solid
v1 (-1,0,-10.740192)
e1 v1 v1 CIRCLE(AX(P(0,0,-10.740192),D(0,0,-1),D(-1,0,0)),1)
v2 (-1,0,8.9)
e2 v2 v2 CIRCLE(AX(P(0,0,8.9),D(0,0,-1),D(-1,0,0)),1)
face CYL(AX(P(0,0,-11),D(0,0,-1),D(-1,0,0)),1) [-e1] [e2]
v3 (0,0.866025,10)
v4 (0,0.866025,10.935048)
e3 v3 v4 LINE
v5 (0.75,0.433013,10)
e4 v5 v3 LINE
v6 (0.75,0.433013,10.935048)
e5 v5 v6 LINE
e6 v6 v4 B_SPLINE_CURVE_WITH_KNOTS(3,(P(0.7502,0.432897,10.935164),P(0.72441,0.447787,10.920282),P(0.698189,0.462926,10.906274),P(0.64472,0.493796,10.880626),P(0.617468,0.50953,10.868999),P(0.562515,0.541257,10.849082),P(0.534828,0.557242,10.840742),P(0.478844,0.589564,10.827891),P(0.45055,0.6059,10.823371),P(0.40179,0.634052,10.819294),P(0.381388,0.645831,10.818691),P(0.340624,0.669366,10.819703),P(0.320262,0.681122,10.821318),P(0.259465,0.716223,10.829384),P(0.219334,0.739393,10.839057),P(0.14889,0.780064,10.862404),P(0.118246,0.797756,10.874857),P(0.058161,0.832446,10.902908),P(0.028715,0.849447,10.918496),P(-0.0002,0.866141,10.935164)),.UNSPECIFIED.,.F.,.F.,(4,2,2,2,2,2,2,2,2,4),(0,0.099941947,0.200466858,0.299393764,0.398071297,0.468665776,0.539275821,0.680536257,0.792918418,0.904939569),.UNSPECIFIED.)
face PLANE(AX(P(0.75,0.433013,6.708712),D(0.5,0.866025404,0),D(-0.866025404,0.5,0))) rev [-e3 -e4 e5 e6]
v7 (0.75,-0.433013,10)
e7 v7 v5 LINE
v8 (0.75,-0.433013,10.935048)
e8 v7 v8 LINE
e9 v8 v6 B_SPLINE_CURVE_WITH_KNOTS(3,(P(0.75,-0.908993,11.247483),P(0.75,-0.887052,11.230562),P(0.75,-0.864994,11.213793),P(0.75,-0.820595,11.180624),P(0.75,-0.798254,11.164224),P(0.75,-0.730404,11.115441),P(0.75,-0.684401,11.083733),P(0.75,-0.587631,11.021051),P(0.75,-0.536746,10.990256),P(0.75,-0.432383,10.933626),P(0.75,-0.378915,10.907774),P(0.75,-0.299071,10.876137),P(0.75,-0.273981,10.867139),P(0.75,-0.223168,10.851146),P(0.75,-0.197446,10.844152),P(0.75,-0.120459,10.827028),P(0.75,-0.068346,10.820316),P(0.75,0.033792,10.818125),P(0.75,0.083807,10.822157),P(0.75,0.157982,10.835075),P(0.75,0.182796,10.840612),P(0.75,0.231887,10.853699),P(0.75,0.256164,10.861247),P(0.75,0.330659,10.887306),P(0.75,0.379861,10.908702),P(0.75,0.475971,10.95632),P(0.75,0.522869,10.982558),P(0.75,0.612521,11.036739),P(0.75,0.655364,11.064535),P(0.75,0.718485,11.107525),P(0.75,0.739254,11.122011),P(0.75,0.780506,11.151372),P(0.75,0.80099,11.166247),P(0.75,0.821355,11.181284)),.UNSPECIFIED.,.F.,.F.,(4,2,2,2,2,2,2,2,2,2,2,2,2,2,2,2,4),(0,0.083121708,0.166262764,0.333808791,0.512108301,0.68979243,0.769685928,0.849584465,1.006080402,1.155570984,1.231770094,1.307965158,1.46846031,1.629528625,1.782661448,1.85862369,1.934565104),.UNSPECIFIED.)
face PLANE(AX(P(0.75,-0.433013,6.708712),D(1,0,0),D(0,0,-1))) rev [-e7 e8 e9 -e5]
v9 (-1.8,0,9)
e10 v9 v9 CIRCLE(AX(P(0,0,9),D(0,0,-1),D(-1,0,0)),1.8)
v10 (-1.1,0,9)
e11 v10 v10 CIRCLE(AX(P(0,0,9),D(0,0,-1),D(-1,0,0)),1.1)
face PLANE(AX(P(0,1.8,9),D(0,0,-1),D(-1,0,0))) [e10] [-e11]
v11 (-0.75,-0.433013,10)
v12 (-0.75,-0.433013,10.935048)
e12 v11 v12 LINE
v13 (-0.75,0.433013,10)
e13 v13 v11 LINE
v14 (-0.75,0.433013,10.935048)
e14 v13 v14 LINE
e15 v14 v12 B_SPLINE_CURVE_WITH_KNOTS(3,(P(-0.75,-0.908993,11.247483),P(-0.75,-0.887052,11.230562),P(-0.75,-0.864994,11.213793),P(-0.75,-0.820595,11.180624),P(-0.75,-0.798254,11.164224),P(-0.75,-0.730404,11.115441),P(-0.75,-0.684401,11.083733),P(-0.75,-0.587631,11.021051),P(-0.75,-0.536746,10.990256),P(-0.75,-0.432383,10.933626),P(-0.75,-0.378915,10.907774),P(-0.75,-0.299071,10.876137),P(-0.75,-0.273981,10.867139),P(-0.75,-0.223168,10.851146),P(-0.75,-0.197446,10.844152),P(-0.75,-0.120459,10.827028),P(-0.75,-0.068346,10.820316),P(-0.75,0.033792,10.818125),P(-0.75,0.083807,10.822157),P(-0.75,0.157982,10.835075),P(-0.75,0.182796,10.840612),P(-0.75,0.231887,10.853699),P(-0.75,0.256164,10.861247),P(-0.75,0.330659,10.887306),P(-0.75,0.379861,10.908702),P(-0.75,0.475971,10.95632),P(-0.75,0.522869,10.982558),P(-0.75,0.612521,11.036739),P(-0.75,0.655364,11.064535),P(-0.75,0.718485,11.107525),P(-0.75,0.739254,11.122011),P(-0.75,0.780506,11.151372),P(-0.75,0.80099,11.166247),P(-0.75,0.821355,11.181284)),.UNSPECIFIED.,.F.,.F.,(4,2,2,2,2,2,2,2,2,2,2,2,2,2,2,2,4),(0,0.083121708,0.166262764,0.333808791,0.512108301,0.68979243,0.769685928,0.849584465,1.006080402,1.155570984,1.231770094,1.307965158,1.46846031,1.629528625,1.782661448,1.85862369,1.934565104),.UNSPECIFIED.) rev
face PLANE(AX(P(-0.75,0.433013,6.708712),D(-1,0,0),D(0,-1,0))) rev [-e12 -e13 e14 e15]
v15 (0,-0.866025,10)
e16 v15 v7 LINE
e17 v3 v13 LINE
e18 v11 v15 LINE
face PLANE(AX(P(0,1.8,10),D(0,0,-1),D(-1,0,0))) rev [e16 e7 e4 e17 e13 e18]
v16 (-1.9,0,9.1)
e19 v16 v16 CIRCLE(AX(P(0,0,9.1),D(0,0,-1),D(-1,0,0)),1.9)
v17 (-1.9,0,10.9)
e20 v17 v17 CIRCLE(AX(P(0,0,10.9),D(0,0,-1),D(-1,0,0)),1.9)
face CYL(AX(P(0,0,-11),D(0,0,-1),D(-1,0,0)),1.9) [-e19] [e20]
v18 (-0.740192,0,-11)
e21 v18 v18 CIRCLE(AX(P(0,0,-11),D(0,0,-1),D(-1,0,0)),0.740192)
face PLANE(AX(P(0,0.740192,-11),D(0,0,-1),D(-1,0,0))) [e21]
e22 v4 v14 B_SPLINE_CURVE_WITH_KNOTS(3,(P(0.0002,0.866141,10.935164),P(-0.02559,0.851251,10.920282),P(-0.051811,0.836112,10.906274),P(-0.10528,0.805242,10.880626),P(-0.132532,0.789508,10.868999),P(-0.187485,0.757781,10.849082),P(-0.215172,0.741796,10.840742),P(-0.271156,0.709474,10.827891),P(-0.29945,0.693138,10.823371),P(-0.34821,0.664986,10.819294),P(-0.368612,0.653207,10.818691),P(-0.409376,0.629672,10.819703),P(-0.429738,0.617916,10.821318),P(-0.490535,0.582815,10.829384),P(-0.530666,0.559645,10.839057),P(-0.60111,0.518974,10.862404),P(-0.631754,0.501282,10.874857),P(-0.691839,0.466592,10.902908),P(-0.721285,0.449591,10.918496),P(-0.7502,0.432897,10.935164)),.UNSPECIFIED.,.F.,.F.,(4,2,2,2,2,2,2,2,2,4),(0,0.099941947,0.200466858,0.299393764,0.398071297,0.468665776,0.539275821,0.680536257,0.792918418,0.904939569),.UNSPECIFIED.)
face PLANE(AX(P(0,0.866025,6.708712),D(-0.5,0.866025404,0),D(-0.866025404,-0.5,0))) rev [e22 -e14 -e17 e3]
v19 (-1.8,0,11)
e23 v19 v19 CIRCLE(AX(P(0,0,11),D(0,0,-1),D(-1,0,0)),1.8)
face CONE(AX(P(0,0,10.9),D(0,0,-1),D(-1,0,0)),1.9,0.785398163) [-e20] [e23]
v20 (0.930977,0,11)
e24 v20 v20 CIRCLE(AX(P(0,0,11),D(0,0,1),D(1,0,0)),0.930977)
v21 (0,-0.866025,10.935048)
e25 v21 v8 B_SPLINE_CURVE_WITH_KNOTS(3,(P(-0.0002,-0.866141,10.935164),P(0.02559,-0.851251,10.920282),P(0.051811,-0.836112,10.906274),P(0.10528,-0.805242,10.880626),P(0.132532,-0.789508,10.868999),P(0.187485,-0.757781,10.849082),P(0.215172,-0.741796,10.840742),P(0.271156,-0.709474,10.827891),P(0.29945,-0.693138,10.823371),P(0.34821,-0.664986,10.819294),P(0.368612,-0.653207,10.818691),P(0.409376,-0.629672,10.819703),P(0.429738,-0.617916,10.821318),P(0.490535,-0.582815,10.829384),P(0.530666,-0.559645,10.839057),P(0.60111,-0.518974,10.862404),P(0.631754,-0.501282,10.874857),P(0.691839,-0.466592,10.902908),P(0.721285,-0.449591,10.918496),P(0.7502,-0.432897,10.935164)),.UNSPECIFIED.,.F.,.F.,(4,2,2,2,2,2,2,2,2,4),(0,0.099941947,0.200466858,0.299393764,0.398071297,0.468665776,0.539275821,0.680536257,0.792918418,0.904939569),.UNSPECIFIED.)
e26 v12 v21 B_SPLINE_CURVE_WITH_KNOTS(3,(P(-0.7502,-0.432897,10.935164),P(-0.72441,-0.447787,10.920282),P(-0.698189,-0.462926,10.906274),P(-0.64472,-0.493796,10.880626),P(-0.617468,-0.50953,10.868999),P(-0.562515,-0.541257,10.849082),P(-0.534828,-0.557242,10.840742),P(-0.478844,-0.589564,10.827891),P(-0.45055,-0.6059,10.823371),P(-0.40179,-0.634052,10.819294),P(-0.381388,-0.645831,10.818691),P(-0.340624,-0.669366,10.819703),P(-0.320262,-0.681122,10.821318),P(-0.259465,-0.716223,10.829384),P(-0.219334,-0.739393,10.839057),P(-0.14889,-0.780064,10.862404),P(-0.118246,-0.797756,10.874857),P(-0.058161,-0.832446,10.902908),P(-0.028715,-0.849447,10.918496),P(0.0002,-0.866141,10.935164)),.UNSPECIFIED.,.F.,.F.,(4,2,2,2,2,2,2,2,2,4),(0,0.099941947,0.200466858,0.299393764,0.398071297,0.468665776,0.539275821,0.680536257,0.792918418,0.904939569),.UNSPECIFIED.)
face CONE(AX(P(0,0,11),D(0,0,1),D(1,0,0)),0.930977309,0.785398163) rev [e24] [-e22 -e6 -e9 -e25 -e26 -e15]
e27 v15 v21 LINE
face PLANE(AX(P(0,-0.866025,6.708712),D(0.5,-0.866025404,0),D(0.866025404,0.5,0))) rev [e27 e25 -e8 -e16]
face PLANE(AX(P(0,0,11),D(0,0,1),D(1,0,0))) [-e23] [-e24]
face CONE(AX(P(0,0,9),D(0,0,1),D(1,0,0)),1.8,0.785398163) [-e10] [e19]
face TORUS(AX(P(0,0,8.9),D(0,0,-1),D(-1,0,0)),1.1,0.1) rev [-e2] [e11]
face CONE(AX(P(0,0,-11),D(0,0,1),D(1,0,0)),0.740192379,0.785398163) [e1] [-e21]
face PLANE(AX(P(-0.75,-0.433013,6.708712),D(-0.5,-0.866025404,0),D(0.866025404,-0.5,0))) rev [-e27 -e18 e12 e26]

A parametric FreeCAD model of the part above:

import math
import FreeCAD as App
import Part
import Sketcher

V = App.Vector
Q = App.Units.Quantity


def faces_at(feature, points):
    """Names of the faces that lie closest to the given points."""
    faces = feature.Shape.Faces
    near = lambda p: min(range(len(faces)), key=lambda i: faces[i].distToShape(Part.Vertex(*p))[0])
    return sorted({f"Face{near(p) + 1}" for p in points})


def add_polygon(sketch, points):
    """Adds a closed chain of lines whose ends are joined by coincident constraints."""
    first, n = sketch.GeometryCount, len(points)
    for a, b in zip(points, points[1:] + points[:1]):
        sketch.addGeometry(Part.LineSegment(App.Vector(*a, 0), App.Vector(*b, 0)), False)
    for i in range(n):
        sketch.addConstraint(Sketcher.Constraint("Coincident", first + i, 2, first + (i + 1) % n, 1))

doc = App.newDocument("Part")
body = doc.addObject("PartDesign::Body", "Body")

sketch1 = body.newObject("Sketcher::SketchObject", "Sketch")
sketch1.AttachmentSupport = (doc.getObject("YZ_Plane"), [""])
sketch1.MapMode = "FlatFace"
sketch1.addGeometry(Part.LineSegment(V(1.8, 11, 0), V(0, 11, 0)), False)
sketch1.addGeometry(Part.LineSegment(V(0, 11, 0), V(0, -11, 0)), False)
sketch1.addGeometry(Part.LineSegment(V(0, -11, 0), V(0.740192, -11, 0)), False)
sketch1.addGeometry(Part.LineSegment(V(0.740192, -11, 0), V(1, -10.740192, 0)), False)
sketch1.addGeometry(Part.LineSegment(V(1, -10.740192, 0), V(1, 8.9, 0)), False)
sketch1.addGeometry(Part.ArcOfCircle(Part.Circle(V(1.1, 8.9, 0), V(0, 0, 1), 0.1), math.radians(90), math.radians(180)), False)
sketch1.addGeometry(Part.LineSegment(V(1.1, 9, 0), V(1.8, 9, 0)), False)
sketch1.addGeometry(Part.LineSegment(V(1.8, 9, 0), V(1.9, 9.1, 0)), False)
sketch1.addGeometry(Part.LineSegment(V(1.9, 9.1, 0), V(1.9, 10.9, 0)), False)
sketch1.addGeometry(Part.LineSegment(V(1.9, 10.9, 0), V(1.8, 11, 0)), False)
sketch1.addConstraint(Sketcher.Constraint("Coincident", 0, 2, 1, 1))
sketch1.addConstraint(Sketcher.Constraint("Coincident", 1, 2, 2, 1))
sketch1.addConstraint(Sketcher.Constraint("Coincident", 2, 2, 3, 1))
sketch1.addConstraint(Sketcher.Constraint("Coincident", 3, 2, 4, 1))
sketch1.addConstraint(Sketcher.Constraint("Tangent", 4, 2, 5, 2))
sketch1.addConstraint(Sketcher.Constraint("Tangent", 5, 1, 6, 1))
sketch1.addConstraint(Sketcher.Constraint("Coincident", 6, 2, 7, 1))
sketch1.addConstraint(Sketcher.Constraint("Coincident", 7, 2, 8, 1))
sketch1.addConstraint(Sketcher.Constraint("Coincident", 8, 2, 9, 1))
sketch1.addConstraint(Sketcher.Constraint("Coincident", 9, 2, 0, 1))
sketch1.addConstraint(Sketcher.Constraint("Horizontal", 0))
sketch1.addConstraint(Sketcher.Constraint("Vertical", 1))
sketch1.addConstraint(Sketcher.Constraint("Horizontal", 2))
sketch1.addConstraint(Sketcher.Constraint("Vertical", 4))
sketch1.addConstraint(Sketcher.Constraint("Horizontal", 6))
sketch1.addConstraint(Sketcher.Constraint("Vertical", 8))
sketch1.addConstraint(Sketcher.Constraint("Symmetric", 0, 2, 1, 2, -1, 1))
sketch1.addConstraint(Sketcher.Constraint("Parallel", 3, 7))
sketch1.addConstraint(Sketcher.Constraint("Perpendicular", 7, 9))
sketch1.addConstraint(Sketcher.Constraint("Vertical", 6, 2, 9, 2))
sketch1.addConstraint(Sketcher.Constraint("Equal", 0, 8))
sketch1.addConstraint(Sketcher.Constraint("Equal", 7, 9))
sketch1.addConstraint(Sketcher.Constraint("Radius", 5, Q("0.1 mm")))
sketch1.addConstraint(Sketcher.Constraint("DistanceY", 1, 2, 1, 1, Q("22 mm")))
sketch1.addConstraint(Sketcher.Constraint("DistanceX", 0, 2, 0, 1, Q("1.8 mm")))
sketch1.addConstraint(Sketcher.Constraint("DistanceX", 6, 1, 6, 2, Q("0.7 mm")))
sketch1.addConstraint(Sketcher.Constraint("DistanceY", -1, 1, 5, 1, Q("9 mm")))
sketch1.addConstraint(Sketcher.Constraint("DistanceX", 2, 1, 2, 2, Q("0.740192 mm")))
revolution = body.newObject("PartDesign::Revolution", "Revolution")
revolution.Profile = sketch1
revolution.ReferenceAxis = (sketch1, ["V_Axis"])
revolution.Angle = 360

sketch2 = body.newObject("Sketcher::SketchObject", "Sketch001")
sketch2.AttachmentSupport = (doc.getObject("XY_Plane"), [""])
sketch2.MapMode = "FlatFace"
sketch2.AttachmentOffset = App.Placement(V(0, 0, 11), App.Rotation())
add_polygon(sketch2, [(0.75, -0.433013), (0.75, 0.433013), (0, 0.866025), (-0.75, 0.433013), (-0.75, -0.433013), (0, -0.866025)])
sketch2.addConstraint(Sketcher.Constraint("Vertical", 0))
sketch2.addConstraint(Sketcher.Constraint("Vertical", 3))
sketch2.addConstraint(Sketcher.Constraint("Symmetric", 0, 2, 3, 2, -1, 1))
sketch2.addConstraint(Sketcher.Constraint("Symmetric", 1, 2, 4, 2, -1, 1))
sketch2.addConstraint(Sketcher.Constraint("PointOnObject", 1, 2, -2))
sketch2.addConstraint(Sketcher.Constraint("Parallel", 2, 5))
sketch2.addConstraint(Sketcher.Constraint("Horizontal", 0, 2, 2, 2))
sketch2.addConstraint(Sketcher.Constraint("Angle", 1, Q("150 deg")))
sketch2.addConstraint(Sketcher.Constraint("DistanceX", 2, 2, 0, 2, Q("1.5 mm")))
sketch2.addConstraint(Sketcher.Constraint("DistanceY", 0, 1, 0, 2, Q("0.866025 mm")))
pocket1 = body.newObject("PartDesign::Pocket", "Pocket")
pocket1.Profile = sketch2
pocket1.Length = 1
body2 = doc.addObject("PartDesign::Body", "Body001")

sketch3 = body2.newObject("Sketcher::SketchObject", "Sketch002")
sketch3.AttachmentSupport = (doc.getObject("XY_Plane001"), [""])
sketch3.MapMode = "FlatFace"
sketch3.AttachmentOffset = App.Placement(V(0, 0, 11), App.Rotation())
sketch3.addGeometry(Part.Circle(V(0, 0, 0), V(0, 0, 1), 0.930977), False)
sketch3.addConstraint(Sketcher.Constraint("Coincident", 0, 3, -1, 1))
sketch3.addConstraint(Sketcher.Constraint("Diameter", 0, Q("1.861955 mm")))
pad1 = body2.newObject("PartDesign::Pad", "Pad")
pad1.Profile = sketch3
pad1.Length = 1
pad1.Reversed = True
doc.recompute()

datumplane = body2.newObject("PartDesign::Plane", "DatumPlane")
datumplane.AttachmentSupport = (doc.getObject("XY_Plane001"), [""])
datumplane.MapMode = "FlatFace"
datumplane.AttachmentOffset = App.Placement(V(0, 0, 11), App.Rotation())
draft = body2.newObject("PartDesign::Draft", "Draft")
draft.Base = (pad1, faces_at(pad1, [(-0.931, 0, 10.5)]))
draft.NeutralPlane = (datumplane, [""])
draft.Angle = 45
draft.Reversed = True
doc.recompute()

boolean = body.newObject("PartDesign::Boolean", "Boolean")
boolean.Type = "Cut"
boolean.addObjects([body2])

doc.recompute()
